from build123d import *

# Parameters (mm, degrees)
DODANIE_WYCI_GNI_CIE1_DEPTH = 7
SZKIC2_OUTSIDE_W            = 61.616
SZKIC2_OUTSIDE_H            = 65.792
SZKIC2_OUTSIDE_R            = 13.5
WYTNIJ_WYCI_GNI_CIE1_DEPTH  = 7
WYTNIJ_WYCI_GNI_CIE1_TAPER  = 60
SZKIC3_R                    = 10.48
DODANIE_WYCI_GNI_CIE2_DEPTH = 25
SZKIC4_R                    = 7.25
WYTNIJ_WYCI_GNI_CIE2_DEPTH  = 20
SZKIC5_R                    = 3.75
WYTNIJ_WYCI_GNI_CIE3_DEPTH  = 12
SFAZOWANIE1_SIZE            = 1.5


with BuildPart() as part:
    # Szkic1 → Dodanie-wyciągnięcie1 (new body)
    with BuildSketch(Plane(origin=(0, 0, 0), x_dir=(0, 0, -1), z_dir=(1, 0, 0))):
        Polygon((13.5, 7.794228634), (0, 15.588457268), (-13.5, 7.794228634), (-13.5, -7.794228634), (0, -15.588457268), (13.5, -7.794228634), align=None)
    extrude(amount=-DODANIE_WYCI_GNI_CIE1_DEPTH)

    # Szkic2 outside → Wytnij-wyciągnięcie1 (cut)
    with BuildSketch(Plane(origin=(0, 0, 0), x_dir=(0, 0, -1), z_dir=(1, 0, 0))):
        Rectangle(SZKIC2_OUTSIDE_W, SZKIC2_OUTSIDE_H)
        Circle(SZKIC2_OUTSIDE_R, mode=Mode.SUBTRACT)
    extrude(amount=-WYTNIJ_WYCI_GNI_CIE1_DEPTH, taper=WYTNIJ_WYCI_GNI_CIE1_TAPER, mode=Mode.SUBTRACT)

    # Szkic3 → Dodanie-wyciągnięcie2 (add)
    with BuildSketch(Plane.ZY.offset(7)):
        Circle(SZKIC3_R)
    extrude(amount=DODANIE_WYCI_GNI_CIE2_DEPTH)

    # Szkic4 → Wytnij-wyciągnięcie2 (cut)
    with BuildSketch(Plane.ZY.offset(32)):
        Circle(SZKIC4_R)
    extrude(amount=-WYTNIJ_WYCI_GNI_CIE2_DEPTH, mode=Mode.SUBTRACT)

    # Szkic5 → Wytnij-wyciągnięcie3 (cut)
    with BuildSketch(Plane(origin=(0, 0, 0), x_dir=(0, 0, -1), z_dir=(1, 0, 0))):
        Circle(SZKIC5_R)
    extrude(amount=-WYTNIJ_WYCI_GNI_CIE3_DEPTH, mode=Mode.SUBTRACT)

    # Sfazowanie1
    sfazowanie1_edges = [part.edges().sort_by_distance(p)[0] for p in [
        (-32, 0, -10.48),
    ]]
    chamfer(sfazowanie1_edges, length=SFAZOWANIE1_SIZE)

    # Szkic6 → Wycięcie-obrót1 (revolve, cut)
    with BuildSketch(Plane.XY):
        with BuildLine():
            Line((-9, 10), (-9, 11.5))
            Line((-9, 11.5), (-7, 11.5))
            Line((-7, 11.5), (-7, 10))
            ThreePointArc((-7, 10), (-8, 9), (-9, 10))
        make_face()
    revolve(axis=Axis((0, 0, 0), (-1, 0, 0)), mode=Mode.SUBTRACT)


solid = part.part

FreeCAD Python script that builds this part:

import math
import FreeCAD as App
import Part
import Sketcher

V = App.Vector
Q = App.Units.Quantity


def edges_at(feature, points):
    """Names of the edges that pass closest to the given points."""
    edges = feature.Shape.Edges
    near = lambda p: min(range(len(edges)), key=lambda i: edges[i].distToShape(Part.Vertex(*p))[0])
    return sorted({f"Edge{near(p) + 1}" for p in points})


def add_polygon(sketch, points):
    """Adds a closed chain of lines whose ends are joined by coincident constraints."""
    first, n = sketch.GeometryCount, len(points)
    for a, b in zip(points, points[1:] + points[:1]):
        sketch.addGeometry(Part.LineSegment(App.Vector(*a, 0), App.Vector(*b, 0)), False)
    for i in range(n):
        sketch.addConstraint(Sketcher.Constraint("Coincident", first + i, 2, first + (i + 1) % n, 1))

doc = App.newDocument("Part")
body = doc.addObject("PartDesign::Body", "Body")

sketch1 = body.newObject("Sketcher::SketchObject", "Sketch")
sketch1.AttachmentSupport = (doc.getObject("YZ_Plane"), [""])
sketch1.MapMode = "FlatFace"
add_polygon(sketch1, [(8, -14), (16, 0), (8, 14), (-8, 14), (-16, 0), (-8, -14)])
sketch1.addConstraint([
    Sketcher.Constraint("Horizontal", 2),
    Sketcher.Constraint("Horizontal", 5),
    Sketcher.Constraint("Symmetric", 0, 2, 3, 2, -1, 1),
    Sketcher.Constraint("Symmetric", 1, 2, 4, 2, -1, 1),
    Sketcher.Constraint("PointOnObject", 0, 2, -1),
    Sketcher.Constraint("Parallel", 0, 3),
    Sketcher.Constraint("Vertical", 2, 2, 4, 2),
    Sketcher.Constraint("Angle", 0, Q("60 deg")),
    Sketcher.Constraint("DistanceY", 4, 2, 2, 2, 27.0),
    Sketcher.Constraint("DistanceX", 2, 2, 2, 1, 15.588457),
])
pad1 = body.newObject("PartDesign::Pad", "Pad")
pad1.Profile = sketch1
pad1.Length = 7
pad1.Reversed = True

sketch2 = body.newObject("Sketcher::SketchObject", "Sketch001")
sketch2.AttachmentSupport = (doc.getObject("YZ_Plane"), [""])
sketch2.MapMode = "FlatFace"
add_polygon(sketch2, [(33, 31), (-33, 31), (-33, -31), (33, -31)])
sketch2.addGeometry(Part.Circle(V(0, 0, 0), V(0, 0, 1), 14), False)
sketch2.addConstraint([
    Sketcher.Constraint("Horizontal", 0),
    Sketcher.Constraint("Vertical", 1),
    Sketcher.Constraint("Horizontal", 2),
    Sketcher.Constraint("Vertical", 3),
    Sketcher.Constraint("Coincident", 4, 3, -1, 1),
    Sketcher.Constraint("Symmetric", 0, 2, 2, 2, -1, 1),
    Sketcher.Constraint("Diameter", 4, 27.0),
    Sketcher.Constraint("DistanceX", 0, 2, 0, 1, 65.792),
    Sketcher.Constraint("DistanceY", 1, 2, 1, 1, 61.616),
])
pocket1 = body.newObject("PartDesign::Pocket", "Pocket")
pocket1.Profile = sketch2
pocket1.Length = 7
pocket1.TaperAngle = 60

sketch3 = body.newObject("Sketcher::SketchObject", "Sketch002")
sketch3.AttachmentSupport = (doc.getObject("YZ_Plane"), [""])
sketch3.MapMode = "FlatFace"
sketch3.AttachmentOffset = App.Placement(V(0, 0, -7), App.Rotation())
sketch3.addGeometry(Part.Circle(V(0, 0, 0), V(0, 0, 1), 10), False)
sketch3.addConstraint([
    Sketcher.Constraint("Coincident", 0, 3, -1, 1),
    Sketcher.Constraint("Diameter", 0, 20.96),
])
pad2 = body.newObject("PartDesign::Pad", "Pad001")
pad2.Profile = sketch3
pad2.Length = 25
pad2.Reversed = True

sketch4 = body.newObject("Sketcher::SketchObject", "Sketch003")
sketch4.AttachmentSupport = (doc.getObject("YZ_Plane"), [""])
sketch4.MapMode = "FlatFace"
sketch4.AttachmentOffset = App.Placement(V(0, 0, -32), App.Rotation())
sketch4.addGeometry(Part.Circle(V(0, 0, 0), V(0, 0, 1), 7), False)
sketch4.addConstraint([
    Sketcher.Constraint("Coincident", 0, 3, -1, 1),
    Sketcher.Constraint("Diameter", 0, 14.5),
])
pocket2 = body.newObject("PartDesign::Pocket", "Pocket001")
pocket2.Profile = sketch4
pocket2.Length = 20
pocket2.Reversed = True

sketch5 = body.newObject("Sketcher::SketchObject", "Sketch004")
sketch5.AttachmentSupport = (doc.getObject("YZ_Plane"), [""])
sketch5.MapMode = "FlatFace"
sketch5.addGeometry(Part.Circle(V(0, 0, 0), V(0, 0, 1), 3.8), False)
sketch5.addConstraint([
    Sketcher.Constraint("Coincident", 0, 3, -1, 1),
    Sketcher.Constraint("Diameter", 0, 7.5),
])
pocket3 = body.newObject("PartDesign::Pocket", "Pocket002")
pocket3.Profile = sketch5
pocket3.Length = 12
doc.recompute()

chamfer = body.newObject("PartDesign::Chamfer", "Chamfer")
chamfer.Base = (pocket3, edges_at(pocket3, [(-32, 0, -10.48)]))
chamfer.Size = 1.5

sketch6 = body.newObject("Sketcher::SketchObject", "Sketch005")
sketch6.AttachmentSupport = (doc.getObject("XY_Plane"), [""])
sketch6.MapMode = "FlatFace"
sketch6.addGeometry([
    Part.LineSegment(V(-9, 11.5, 0), V(-9, 10, 0)),
    Part.ArcOfCircle(Part.Circle(V(-8, 10, 0), V(0, 0, 1), 1), math.radians(180), math.radians(360)),
    Part.LineSegment(V(-7, 10, 0), V(-7, 11.5, 0)),
    Part.LineSegment(V(-7, 11.5, 0), V(-9, 11.5, 0)),
], False)
sketch6.addConstraint([
    Sketcher.Constraint("Tangent", 0, 2, 1, 1),
    Sketcher.Constraint("Tangent", 1, 2, 2, 1),
    Sketcher.Constraint("Coincident", 2, 2, 3, 1),
    Sketcher.Constraint("Coincident", 3, 2, 0, 1),
    Sketcher.Constraint("Vertical", 0),
    Sketcher.Constraint("Vertical", 2),
    Sketcher.Constraint("Horizontal", 3),
    Sketcher.Constraint("Radius", 1, 1.0),
    Sketcher.Constraint("DistanceY", 0, 2, 0, 1, 1.5),
    Sketcher.Constraint("DistanceX", 1, 3, -1, 1, 8.0),
    Sketcher.Constraint("DistanceY", -1, 1, 1, 3, 10.0),
])
groove = body.newObject("PartDesign::Groove", "Groove")
groove.Profile = sketch6
groove.ReferenceAxis = (sketch6, ["H_Axis"])
groove.Angle = 360

doc.recompute()
